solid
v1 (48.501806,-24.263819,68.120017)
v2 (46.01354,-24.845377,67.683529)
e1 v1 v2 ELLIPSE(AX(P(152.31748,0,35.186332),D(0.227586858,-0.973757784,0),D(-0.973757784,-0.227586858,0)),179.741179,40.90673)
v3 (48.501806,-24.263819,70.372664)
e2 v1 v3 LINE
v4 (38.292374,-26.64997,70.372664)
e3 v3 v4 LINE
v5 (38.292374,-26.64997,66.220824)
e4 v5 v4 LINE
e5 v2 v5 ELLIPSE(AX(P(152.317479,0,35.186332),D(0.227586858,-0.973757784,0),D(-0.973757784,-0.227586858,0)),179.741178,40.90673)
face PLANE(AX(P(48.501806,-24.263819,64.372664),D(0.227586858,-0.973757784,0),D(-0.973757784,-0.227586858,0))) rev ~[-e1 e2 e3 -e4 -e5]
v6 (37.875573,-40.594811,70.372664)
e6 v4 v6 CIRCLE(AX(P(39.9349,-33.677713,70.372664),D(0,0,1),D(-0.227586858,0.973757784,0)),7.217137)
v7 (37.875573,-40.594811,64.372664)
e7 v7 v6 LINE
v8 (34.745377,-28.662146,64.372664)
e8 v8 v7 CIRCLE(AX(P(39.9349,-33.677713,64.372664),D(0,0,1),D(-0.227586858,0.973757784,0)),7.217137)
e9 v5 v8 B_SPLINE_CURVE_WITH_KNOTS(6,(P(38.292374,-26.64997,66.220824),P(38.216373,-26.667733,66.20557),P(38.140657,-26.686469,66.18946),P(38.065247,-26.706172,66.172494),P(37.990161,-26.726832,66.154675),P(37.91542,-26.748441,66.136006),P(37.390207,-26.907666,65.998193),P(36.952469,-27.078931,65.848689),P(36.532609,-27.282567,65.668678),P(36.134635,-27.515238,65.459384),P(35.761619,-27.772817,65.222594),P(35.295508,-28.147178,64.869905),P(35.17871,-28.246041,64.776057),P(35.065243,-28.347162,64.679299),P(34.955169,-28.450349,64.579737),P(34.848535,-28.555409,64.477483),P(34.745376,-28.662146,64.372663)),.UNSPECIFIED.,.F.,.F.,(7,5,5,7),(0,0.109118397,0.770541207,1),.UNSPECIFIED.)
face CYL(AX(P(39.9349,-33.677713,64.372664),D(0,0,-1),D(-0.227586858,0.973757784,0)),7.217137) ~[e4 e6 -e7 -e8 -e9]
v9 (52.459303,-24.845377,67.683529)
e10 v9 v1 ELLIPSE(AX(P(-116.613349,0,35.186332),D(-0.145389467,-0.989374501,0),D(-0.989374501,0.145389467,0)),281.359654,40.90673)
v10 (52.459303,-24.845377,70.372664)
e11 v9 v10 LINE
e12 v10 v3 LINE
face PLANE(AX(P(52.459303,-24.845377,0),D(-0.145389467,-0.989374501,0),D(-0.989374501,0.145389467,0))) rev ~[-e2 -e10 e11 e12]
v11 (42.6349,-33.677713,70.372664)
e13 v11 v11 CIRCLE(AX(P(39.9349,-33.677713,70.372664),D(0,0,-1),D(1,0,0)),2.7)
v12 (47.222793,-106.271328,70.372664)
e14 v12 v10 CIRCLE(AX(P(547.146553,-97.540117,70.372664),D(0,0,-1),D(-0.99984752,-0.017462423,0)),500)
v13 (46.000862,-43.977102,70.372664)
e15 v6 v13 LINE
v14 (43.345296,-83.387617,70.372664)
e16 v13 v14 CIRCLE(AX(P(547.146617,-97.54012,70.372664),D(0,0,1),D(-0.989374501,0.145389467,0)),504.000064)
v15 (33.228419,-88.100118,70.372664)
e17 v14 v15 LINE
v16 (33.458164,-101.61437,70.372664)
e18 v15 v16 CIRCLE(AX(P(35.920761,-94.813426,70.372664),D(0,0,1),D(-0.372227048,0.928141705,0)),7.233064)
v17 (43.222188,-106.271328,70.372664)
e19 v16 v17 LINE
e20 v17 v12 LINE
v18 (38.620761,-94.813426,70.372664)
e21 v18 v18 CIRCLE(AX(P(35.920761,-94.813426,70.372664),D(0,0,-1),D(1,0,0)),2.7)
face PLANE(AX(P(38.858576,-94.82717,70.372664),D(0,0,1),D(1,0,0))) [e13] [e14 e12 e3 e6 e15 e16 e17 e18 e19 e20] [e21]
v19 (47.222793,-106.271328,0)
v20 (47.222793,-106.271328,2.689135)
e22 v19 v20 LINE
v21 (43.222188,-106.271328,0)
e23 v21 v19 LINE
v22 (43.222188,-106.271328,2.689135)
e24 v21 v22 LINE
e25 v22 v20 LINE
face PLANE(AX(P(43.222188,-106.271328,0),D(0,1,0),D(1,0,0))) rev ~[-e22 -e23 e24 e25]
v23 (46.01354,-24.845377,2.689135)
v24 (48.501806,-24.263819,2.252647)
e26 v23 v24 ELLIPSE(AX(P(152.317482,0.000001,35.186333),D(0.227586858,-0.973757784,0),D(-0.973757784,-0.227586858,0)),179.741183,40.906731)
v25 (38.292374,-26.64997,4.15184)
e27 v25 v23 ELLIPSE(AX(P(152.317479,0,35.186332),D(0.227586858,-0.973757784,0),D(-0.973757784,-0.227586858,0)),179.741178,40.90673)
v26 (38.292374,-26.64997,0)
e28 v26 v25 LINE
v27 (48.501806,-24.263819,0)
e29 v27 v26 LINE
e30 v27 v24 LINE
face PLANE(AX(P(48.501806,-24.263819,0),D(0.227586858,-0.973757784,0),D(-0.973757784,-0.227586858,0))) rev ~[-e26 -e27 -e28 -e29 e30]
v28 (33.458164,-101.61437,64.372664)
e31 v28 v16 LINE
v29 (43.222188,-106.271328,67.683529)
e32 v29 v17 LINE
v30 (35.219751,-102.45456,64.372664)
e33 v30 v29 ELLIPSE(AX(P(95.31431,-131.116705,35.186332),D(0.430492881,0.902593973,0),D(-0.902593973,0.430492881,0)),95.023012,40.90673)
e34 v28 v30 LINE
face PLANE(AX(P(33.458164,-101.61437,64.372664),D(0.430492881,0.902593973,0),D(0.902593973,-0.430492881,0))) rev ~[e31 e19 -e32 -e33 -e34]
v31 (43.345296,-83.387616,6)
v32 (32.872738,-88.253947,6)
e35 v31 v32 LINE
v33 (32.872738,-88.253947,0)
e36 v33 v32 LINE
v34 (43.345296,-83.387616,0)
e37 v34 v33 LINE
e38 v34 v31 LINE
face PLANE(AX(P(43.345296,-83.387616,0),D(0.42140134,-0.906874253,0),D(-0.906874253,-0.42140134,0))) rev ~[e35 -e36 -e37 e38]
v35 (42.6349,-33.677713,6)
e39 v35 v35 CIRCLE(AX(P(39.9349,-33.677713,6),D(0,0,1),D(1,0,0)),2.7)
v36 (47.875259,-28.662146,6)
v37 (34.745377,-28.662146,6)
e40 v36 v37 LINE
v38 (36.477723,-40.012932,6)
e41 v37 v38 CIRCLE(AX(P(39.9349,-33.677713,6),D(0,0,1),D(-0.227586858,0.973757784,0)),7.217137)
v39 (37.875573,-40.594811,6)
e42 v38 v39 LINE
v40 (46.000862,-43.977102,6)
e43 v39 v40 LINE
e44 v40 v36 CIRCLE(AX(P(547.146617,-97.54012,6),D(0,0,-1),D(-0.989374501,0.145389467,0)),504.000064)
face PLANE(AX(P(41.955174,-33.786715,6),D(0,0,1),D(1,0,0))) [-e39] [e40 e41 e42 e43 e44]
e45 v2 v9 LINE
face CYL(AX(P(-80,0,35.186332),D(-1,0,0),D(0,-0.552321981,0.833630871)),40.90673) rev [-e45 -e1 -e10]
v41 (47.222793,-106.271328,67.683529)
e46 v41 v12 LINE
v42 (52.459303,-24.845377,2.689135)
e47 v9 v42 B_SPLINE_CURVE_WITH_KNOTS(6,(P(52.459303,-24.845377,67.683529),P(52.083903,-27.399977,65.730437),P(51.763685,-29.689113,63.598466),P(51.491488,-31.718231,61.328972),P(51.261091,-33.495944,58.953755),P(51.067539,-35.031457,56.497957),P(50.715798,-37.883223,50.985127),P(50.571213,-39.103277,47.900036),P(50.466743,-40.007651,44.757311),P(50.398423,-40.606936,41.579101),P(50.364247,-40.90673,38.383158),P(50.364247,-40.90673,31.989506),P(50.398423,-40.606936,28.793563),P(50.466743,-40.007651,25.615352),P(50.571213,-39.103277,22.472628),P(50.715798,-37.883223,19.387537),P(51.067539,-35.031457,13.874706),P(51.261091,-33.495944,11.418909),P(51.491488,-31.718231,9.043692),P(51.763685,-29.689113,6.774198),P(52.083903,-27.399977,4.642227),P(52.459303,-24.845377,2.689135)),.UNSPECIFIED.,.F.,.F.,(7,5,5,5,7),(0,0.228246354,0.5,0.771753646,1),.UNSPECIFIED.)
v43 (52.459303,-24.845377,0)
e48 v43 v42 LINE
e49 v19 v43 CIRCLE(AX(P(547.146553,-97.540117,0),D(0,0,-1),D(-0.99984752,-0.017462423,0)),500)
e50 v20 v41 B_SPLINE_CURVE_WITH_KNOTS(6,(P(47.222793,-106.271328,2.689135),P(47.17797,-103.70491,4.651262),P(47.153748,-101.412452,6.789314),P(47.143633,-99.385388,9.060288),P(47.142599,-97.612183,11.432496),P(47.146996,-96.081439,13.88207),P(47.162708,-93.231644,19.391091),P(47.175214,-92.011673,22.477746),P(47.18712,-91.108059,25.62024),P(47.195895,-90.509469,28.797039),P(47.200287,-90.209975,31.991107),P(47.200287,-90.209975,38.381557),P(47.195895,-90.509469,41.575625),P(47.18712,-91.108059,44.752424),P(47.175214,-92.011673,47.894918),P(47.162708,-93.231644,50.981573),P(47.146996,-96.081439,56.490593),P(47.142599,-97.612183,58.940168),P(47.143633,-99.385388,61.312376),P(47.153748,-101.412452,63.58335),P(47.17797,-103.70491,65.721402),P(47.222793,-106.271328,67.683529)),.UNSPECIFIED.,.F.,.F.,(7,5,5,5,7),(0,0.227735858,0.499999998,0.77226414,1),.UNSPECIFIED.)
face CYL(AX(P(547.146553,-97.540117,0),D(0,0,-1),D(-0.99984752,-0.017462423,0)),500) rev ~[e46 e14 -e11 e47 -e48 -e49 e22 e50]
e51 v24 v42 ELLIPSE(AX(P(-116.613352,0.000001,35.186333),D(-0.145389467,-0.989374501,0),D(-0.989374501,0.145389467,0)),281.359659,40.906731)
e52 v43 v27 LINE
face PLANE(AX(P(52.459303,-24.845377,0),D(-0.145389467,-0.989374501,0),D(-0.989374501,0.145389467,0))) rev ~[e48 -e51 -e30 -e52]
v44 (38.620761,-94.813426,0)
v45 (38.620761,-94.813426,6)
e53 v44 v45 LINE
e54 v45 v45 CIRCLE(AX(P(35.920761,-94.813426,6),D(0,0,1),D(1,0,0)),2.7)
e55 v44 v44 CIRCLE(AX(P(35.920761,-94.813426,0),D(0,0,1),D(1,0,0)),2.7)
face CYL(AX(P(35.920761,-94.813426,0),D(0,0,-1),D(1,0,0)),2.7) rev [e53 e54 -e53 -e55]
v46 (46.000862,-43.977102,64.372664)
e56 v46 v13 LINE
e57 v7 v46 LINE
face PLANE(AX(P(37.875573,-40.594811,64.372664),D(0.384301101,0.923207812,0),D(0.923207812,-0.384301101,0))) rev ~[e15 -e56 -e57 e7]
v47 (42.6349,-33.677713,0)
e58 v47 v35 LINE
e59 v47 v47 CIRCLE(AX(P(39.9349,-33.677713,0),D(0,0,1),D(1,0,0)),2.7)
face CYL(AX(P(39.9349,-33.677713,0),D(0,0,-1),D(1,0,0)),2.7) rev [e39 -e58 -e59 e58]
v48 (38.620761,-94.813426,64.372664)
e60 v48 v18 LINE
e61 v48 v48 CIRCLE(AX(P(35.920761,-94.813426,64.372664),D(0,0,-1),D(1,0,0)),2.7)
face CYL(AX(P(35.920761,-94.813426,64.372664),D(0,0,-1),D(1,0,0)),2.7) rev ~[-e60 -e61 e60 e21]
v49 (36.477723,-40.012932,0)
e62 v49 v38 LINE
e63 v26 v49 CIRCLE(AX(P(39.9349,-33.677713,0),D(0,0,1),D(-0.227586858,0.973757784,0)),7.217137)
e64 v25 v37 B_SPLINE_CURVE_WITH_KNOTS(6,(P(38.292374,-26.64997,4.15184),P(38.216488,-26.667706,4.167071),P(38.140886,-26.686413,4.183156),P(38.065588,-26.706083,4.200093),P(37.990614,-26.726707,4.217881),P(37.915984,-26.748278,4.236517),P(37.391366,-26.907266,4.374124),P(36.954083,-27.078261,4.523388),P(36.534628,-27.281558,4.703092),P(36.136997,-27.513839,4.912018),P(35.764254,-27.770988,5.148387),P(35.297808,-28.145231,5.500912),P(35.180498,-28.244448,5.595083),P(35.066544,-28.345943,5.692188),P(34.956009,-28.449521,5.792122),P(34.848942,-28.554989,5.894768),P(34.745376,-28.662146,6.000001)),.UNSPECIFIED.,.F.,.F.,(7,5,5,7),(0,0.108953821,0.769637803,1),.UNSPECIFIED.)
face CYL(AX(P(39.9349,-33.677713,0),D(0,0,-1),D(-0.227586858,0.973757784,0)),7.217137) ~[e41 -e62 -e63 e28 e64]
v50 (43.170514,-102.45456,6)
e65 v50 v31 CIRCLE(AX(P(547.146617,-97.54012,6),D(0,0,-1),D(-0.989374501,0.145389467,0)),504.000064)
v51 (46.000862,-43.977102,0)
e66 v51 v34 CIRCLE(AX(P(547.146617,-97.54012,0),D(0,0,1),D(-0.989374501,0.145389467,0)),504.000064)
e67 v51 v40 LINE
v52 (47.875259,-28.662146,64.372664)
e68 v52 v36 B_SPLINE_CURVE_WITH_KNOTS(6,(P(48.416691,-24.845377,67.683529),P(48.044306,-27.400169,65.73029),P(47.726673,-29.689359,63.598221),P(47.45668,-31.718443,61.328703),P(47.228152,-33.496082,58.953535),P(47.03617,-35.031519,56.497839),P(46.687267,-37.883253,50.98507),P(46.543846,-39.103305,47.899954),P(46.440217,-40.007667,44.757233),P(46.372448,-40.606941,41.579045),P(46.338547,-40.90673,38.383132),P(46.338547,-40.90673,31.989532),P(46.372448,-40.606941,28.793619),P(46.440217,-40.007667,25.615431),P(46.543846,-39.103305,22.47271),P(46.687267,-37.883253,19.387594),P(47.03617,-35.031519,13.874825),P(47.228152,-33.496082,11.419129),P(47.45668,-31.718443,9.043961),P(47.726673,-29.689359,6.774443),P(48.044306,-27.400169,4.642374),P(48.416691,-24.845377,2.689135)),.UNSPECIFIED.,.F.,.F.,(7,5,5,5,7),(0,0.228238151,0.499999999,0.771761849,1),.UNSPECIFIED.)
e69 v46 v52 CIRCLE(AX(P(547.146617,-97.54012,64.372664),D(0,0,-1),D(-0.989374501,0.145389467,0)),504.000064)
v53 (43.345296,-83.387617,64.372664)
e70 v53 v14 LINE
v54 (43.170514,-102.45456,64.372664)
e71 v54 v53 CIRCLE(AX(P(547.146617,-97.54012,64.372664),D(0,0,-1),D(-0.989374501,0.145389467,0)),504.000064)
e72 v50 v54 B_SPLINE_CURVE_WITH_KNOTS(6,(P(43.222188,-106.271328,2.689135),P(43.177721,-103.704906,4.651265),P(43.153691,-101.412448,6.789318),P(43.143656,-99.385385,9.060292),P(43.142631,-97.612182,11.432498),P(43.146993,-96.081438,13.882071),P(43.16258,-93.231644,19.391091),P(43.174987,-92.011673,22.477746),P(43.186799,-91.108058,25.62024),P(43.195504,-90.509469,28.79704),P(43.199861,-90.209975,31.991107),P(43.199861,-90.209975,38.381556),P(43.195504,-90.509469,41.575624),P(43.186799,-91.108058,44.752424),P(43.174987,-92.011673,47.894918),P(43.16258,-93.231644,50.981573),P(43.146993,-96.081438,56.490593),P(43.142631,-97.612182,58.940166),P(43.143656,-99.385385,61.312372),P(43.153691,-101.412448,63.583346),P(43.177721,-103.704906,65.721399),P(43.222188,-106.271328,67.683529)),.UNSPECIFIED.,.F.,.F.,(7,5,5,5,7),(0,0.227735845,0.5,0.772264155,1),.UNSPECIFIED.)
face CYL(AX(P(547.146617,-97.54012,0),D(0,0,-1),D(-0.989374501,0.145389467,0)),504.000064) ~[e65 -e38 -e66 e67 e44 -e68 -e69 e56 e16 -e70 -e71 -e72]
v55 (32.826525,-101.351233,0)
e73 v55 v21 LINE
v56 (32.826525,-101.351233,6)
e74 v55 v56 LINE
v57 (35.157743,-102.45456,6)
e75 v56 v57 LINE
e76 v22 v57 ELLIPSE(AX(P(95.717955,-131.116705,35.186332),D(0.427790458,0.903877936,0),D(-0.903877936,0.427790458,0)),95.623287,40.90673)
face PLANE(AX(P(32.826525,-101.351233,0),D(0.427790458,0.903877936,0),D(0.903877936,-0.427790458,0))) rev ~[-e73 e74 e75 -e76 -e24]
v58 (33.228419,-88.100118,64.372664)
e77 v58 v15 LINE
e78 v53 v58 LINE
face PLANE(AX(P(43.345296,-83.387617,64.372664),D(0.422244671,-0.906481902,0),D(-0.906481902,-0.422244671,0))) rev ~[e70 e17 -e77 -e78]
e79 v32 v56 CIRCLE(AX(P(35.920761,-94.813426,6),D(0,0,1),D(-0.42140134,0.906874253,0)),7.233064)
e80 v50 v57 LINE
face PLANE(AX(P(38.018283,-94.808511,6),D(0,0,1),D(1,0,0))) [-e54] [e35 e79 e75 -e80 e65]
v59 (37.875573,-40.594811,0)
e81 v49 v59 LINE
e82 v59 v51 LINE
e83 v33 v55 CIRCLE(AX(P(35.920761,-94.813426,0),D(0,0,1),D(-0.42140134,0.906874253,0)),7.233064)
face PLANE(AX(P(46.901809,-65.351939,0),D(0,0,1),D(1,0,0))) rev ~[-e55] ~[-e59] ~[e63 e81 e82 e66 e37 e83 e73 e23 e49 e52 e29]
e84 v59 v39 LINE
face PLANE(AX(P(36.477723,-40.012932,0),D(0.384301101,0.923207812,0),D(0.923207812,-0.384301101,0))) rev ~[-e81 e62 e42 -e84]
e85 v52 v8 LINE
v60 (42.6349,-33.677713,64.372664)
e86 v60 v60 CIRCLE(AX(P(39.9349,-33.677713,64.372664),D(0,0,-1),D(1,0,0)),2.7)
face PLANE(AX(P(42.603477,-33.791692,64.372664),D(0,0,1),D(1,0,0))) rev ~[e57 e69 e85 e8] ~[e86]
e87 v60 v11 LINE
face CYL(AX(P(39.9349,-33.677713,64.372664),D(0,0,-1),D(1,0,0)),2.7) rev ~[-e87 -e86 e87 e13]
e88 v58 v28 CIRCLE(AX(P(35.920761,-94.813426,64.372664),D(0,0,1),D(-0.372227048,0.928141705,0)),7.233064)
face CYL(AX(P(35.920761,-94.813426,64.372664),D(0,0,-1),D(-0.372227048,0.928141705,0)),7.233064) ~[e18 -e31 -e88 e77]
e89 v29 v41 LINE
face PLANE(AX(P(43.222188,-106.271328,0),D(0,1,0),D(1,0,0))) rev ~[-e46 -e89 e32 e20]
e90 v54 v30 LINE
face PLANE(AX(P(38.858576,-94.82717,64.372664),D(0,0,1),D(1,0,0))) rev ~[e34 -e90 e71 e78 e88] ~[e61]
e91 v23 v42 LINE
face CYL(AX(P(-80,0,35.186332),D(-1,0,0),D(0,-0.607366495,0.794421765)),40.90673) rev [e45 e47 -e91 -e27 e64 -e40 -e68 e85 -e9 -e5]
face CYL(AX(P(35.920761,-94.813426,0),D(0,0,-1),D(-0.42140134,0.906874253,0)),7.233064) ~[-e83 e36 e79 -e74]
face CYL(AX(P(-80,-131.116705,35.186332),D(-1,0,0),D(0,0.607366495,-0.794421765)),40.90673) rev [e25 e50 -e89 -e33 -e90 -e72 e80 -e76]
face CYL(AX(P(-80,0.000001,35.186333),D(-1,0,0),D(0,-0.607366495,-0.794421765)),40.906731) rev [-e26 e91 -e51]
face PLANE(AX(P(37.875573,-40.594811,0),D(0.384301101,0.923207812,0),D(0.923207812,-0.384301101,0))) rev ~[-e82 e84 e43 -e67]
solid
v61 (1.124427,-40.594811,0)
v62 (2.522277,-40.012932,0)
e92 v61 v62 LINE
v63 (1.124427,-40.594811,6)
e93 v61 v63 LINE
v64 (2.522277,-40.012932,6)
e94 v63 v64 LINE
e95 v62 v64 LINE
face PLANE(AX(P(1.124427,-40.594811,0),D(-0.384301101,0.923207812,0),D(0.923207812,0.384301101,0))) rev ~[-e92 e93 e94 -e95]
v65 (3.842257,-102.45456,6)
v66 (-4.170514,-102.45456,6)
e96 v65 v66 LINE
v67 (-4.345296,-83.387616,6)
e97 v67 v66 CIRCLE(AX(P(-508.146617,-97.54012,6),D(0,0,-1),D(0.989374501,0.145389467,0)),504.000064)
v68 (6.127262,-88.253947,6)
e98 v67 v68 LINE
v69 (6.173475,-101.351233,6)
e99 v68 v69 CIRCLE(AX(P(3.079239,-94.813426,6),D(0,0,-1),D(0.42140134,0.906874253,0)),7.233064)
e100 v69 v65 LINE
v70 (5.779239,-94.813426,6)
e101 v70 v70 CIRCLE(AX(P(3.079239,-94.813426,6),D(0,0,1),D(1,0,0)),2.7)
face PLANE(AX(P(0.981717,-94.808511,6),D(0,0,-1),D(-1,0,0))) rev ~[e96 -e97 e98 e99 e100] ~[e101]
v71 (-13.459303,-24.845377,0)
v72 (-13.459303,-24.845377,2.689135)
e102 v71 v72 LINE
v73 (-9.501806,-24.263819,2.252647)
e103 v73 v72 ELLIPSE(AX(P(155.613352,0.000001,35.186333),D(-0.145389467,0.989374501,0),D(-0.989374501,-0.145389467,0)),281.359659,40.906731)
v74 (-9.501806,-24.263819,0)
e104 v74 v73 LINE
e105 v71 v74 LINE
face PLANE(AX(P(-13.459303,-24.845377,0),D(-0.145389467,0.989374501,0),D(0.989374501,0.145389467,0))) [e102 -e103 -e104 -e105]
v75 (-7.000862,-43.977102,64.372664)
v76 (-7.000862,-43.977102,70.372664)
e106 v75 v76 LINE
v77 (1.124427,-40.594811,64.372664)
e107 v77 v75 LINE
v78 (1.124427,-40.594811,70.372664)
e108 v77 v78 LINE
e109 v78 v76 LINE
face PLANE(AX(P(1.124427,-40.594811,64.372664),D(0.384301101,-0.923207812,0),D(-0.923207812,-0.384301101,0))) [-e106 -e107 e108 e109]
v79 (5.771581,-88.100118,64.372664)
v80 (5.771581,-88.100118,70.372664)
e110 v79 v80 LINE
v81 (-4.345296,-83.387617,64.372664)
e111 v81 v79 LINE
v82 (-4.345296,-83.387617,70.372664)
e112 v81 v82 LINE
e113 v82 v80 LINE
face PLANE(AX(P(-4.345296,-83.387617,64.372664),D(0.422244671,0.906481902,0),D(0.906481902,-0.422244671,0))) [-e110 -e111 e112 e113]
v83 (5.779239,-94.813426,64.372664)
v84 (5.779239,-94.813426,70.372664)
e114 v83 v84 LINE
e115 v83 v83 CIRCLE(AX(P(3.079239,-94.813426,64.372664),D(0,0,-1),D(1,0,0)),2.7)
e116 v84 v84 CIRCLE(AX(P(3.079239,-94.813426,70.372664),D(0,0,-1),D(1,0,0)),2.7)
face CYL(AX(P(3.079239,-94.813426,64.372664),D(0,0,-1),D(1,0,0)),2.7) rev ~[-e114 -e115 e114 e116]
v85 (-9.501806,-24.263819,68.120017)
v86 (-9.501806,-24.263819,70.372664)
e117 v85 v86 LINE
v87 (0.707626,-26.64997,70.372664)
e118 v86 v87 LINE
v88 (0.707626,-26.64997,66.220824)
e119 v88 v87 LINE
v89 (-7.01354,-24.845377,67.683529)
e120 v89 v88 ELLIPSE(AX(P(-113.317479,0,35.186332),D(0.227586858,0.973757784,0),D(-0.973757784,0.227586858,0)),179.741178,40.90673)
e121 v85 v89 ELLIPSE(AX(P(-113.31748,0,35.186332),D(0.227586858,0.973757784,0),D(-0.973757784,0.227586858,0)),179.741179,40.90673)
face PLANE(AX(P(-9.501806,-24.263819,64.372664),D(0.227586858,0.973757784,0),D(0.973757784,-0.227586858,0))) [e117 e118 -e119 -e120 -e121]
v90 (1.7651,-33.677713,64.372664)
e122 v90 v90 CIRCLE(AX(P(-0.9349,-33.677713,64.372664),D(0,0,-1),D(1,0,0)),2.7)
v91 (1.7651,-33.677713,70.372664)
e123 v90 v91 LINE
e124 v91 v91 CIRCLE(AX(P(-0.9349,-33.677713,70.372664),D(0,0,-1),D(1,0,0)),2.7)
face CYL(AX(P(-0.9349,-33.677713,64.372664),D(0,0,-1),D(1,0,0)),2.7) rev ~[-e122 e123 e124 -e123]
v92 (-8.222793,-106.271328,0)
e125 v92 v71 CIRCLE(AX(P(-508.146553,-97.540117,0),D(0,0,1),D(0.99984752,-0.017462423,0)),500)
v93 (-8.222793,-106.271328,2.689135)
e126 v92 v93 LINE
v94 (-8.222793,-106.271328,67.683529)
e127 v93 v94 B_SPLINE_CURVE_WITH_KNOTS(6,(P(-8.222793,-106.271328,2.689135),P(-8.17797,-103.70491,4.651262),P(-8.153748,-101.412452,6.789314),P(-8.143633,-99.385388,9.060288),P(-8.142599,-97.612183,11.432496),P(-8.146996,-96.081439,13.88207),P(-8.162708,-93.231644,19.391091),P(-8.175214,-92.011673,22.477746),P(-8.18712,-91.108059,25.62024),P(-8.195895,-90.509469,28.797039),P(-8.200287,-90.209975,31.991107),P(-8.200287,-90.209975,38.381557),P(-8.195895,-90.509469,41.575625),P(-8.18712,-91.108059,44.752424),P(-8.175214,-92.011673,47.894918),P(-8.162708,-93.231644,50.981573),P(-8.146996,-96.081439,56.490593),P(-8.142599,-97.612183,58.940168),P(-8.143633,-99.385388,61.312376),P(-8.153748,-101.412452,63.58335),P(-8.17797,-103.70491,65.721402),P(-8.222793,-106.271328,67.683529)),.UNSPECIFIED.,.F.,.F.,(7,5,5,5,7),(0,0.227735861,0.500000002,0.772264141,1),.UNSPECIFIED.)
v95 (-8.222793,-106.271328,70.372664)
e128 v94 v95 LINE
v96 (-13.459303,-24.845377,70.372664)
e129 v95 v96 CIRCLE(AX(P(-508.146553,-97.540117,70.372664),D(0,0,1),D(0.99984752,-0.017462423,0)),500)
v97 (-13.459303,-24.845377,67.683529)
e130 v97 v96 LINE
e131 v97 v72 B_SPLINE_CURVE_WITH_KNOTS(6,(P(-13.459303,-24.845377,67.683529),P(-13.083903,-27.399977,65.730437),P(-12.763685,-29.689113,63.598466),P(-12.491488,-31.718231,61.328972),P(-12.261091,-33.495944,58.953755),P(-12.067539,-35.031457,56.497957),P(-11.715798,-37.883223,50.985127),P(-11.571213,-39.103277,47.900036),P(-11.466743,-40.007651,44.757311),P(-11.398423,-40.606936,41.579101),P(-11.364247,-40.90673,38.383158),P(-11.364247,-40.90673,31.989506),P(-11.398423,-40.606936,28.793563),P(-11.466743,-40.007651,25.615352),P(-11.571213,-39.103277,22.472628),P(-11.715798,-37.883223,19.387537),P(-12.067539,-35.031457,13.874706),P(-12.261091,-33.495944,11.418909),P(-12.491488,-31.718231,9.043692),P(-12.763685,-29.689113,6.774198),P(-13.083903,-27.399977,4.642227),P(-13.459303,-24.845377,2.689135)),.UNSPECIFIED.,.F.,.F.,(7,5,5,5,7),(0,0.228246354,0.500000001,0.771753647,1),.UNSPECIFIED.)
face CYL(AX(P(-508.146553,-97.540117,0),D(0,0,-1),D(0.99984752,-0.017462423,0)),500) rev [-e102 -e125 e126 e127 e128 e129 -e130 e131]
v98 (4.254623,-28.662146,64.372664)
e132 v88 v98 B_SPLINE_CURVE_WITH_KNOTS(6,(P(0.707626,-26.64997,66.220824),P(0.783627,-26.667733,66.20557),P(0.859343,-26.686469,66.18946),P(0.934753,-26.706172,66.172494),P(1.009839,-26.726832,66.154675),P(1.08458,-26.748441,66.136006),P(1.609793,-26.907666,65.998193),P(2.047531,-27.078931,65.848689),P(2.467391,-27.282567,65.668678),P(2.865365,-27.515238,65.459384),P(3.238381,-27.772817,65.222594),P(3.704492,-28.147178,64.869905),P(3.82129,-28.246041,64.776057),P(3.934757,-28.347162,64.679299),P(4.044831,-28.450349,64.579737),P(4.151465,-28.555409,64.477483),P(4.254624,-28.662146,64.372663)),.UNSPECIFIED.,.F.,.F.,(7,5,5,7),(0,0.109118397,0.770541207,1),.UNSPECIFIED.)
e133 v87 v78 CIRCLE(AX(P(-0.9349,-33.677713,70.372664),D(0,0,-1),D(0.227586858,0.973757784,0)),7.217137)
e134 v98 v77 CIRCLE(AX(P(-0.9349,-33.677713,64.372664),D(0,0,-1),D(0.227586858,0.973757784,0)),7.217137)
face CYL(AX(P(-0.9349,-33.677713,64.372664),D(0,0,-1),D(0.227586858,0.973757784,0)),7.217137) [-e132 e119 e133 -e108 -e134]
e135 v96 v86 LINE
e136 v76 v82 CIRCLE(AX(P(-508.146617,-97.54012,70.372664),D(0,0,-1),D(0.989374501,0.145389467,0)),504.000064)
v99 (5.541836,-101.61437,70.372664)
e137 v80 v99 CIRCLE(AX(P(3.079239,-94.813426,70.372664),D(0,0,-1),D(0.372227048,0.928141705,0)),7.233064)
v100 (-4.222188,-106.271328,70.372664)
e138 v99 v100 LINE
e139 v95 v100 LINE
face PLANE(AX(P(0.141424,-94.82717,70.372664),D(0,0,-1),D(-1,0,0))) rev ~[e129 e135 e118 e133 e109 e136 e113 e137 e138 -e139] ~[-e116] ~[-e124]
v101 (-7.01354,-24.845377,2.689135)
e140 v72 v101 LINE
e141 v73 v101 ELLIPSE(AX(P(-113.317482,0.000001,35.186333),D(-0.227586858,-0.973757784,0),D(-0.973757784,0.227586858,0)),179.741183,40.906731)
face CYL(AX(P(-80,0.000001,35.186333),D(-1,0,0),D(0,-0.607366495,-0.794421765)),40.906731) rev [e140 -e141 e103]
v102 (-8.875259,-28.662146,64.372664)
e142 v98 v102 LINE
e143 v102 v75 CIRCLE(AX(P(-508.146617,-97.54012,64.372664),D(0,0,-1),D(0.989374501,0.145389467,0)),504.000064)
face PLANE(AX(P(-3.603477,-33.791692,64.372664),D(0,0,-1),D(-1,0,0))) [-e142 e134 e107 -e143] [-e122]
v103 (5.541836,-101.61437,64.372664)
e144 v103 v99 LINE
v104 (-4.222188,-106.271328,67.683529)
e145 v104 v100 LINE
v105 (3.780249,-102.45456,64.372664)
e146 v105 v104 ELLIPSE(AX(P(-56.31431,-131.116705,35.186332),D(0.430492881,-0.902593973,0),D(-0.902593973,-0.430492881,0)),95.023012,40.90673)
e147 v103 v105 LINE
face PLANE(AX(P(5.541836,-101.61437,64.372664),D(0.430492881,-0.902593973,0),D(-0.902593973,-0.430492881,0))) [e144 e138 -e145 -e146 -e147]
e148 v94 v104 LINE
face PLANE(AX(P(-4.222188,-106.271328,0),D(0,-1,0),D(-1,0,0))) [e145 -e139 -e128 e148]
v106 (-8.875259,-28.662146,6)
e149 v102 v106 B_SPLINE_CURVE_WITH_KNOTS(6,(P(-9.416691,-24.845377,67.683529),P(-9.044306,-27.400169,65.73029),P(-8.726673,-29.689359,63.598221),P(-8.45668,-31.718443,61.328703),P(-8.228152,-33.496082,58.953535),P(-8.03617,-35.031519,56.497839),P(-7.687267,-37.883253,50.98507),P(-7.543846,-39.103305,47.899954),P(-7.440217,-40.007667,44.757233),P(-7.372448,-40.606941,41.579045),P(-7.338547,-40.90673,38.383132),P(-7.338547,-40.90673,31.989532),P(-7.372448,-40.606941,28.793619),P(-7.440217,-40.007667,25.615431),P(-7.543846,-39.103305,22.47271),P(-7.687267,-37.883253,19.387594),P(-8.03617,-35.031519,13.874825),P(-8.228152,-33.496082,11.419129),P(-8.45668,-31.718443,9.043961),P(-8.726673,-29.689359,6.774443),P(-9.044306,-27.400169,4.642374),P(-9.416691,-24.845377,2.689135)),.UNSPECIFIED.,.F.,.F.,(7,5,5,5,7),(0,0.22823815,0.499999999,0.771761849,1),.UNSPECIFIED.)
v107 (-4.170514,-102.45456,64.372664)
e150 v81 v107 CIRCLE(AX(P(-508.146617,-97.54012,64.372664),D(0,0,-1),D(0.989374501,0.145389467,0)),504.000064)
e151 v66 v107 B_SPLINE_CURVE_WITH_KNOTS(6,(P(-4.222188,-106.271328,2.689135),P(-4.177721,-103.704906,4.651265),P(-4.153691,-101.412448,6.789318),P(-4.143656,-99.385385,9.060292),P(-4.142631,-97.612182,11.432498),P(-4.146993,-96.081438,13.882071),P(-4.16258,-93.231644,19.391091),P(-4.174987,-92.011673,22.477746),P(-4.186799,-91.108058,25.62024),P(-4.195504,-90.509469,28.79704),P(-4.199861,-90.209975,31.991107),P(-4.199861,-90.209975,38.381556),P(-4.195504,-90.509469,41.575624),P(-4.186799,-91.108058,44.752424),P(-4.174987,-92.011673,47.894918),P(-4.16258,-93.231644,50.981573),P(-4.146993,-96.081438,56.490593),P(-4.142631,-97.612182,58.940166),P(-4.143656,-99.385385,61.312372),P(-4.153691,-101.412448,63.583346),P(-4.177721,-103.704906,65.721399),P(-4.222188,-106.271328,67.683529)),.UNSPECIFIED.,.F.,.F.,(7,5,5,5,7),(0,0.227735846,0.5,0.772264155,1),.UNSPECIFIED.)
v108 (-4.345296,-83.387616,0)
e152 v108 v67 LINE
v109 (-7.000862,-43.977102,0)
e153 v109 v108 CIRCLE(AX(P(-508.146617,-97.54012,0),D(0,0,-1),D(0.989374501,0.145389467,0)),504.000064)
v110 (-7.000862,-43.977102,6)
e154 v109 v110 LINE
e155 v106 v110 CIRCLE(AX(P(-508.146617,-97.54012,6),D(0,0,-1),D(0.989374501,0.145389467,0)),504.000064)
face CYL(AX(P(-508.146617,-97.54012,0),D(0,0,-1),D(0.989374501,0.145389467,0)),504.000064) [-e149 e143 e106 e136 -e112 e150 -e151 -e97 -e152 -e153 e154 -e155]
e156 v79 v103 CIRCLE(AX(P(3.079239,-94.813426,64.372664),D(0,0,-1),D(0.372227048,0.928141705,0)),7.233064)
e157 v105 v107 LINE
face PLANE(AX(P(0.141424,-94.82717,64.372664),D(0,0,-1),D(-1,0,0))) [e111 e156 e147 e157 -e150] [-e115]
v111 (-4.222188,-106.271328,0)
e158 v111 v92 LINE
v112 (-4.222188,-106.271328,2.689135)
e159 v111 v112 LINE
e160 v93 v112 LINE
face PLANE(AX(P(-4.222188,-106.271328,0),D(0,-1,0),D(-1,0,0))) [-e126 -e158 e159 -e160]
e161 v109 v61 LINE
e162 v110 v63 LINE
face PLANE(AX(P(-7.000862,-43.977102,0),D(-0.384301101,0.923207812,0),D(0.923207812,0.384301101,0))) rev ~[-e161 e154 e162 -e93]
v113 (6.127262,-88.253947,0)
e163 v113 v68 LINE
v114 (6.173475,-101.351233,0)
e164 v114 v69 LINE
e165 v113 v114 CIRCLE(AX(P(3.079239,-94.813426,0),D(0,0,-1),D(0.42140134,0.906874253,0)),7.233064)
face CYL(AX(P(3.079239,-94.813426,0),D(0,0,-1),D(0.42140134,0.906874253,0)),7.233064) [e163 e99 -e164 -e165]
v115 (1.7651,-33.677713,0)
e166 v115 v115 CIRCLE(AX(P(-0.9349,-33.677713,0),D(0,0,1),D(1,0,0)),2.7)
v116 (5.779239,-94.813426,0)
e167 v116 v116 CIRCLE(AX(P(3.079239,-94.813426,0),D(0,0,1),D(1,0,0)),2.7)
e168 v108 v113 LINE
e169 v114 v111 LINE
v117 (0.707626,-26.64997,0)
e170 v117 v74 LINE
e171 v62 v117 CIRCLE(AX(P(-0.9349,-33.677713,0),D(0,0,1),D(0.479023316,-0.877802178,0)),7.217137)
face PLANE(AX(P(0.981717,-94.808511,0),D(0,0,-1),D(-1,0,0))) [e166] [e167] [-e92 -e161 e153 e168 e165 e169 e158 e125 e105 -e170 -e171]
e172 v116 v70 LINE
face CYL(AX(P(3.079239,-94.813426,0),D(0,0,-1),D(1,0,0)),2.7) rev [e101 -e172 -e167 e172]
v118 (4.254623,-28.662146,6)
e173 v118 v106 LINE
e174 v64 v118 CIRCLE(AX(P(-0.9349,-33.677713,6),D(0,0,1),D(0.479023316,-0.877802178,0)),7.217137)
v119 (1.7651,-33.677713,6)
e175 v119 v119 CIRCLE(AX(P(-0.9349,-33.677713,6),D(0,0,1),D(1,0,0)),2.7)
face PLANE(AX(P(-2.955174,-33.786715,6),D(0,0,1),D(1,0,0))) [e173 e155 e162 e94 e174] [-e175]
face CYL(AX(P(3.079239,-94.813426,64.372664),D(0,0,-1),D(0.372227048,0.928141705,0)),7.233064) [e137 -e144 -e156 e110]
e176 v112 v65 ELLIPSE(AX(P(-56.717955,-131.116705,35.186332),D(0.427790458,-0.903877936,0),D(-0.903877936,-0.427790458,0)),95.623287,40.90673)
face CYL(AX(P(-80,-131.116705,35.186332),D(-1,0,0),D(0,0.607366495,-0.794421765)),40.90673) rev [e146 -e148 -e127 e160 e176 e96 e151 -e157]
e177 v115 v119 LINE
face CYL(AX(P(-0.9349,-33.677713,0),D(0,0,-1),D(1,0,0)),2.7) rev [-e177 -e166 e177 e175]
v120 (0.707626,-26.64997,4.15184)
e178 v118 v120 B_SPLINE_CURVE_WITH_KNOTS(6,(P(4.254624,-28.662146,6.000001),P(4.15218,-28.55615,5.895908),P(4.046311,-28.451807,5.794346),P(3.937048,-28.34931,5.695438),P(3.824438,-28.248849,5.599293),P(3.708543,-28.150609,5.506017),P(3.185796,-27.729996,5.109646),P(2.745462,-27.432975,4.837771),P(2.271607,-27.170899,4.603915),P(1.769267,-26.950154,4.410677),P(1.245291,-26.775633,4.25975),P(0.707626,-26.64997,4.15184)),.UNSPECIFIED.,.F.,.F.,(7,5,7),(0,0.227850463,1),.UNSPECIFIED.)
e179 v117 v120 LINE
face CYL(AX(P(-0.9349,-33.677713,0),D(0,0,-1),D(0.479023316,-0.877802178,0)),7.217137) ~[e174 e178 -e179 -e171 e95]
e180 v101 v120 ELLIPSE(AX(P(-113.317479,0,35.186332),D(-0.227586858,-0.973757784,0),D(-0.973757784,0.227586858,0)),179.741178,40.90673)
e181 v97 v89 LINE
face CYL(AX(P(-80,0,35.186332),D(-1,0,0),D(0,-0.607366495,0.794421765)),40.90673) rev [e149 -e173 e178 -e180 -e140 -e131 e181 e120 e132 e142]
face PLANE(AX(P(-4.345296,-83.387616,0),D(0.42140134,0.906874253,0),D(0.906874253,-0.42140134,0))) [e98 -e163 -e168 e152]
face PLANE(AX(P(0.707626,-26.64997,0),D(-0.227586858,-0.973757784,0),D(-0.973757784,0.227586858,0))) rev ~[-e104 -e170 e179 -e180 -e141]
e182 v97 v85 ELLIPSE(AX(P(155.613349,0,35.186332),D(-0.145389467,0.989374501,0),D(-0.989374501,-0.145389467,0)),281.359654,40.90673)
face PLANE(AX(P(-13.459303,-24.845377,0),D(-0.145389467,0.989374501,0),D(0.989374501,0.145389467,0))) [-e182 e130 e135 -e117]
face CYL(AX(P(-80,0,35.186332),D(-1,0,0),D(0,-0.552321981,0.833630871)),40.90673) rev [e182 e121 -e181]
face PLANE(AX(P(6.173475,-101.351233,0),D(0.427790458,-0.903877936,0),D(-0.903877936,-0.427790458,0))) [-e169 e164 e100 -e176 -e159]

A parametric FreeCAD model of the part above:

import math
import FreeCAD as App
import Part
import Sketcher

doc = App.newDocument("Part")
body = doc.addObject("PartDesign::Body", "Body")

# Sketch on XY plane
sketch1 = doc.addObject("Sketcher::SketchObject", "Sketch")
body.addObject(sketch1)
sketch1.AttachmentSupport = (doc.XY_Plane, [""])
sketch1.MapMode = "FlatFace"
sketch1.addGeometry([
    Part.LineSegment(App.Vector(52.5, -24.8, 0), App.Vector(48.5, -24.3, 0)),
    Part.ArcOfCircle(Part.Circle(App.Vector(547.1, -97.5, 0), App.Vector(0, 0, 1), 504), math.radians(171.64), math.radians(180.99)),
    Part.LineSegment(App.Vector(43.2, -106.3, 0), App.Vector(47.2, -106.3, 0)),
    Part.ArcOfCircle(Part.Circle(App.Vector(547.1, -97.5, 0), App.Vector(0, 0, 1), 500), math.radians(171.64), math.radians(181)),
], False)
sketch1.addConstraint([
    Sketcher.Constraint("Coincident", 0, 2, 1, 1),
    Sketcher.Constraint("Coincident", 1, 2, 2, 1),
    Sketcher.Constraint("Coincident", 2, 2, 3, 2),
    Sketcher.Constraint("Coincident", 3, 1, 0, 1),
    Sketcher.Constraint("Horizontal", 2),
    Sketcher.Constraint("Radius", 3, 500.0),
    Sketcher.Constraint("Distance", 0, 4.0),
    Sketcher.Constraint("Radius", 1, 504.000064),
    Sketcher.Constraint("DistanceY", 1, 3, 0, 2, 73.276301),
    Sketcher.Constraint("DistanceX", 2, 1, 2, 2, 4.000605),
    Sketcher.Constraint("DistanceY", 1, 3, -1, 1, 97.54012),
    Sketcher.Constraint("DistanceY", 2, 2, 0, 2, 82.007509),
    Sketcher.Constraint("DistanceX", 2, 2, 3, 1, 5.236511),
    Sketcher.Constraint("DistanceX", -1, 1, 1, 3, 547.146617),
])
pad1 = doc.addObject("PartDesign::Pad", "Pad")
body.addObject(pad1)
pad1.Profile = sketch1
pad1.Length = 70.372664
body2 = doc.addObject("PartDesign::Body", "Body001")

# Sketch on XY plane
sketch2 = doc.addObject("Sketcher::SketchObject", "Sketch001")
body2.addObject(sketch2)
sketch2.AttachmentSupport = (doc.getObject("XY_Plane001"), [""])
sketch2.MapMode = "FlatFace"
sketch2.addGeometry([
    Part.ArcOfCircle(Part.Circle(App.Vector(-508.1, -97.5, 0), App.Vector(0, 0, 1), 504), math.radians(-0.99), math.radians(8.36)),
    Part.LineSegment(App.Vector(-9.5, -24.3, 0), App.Vector(-13.5, -24.8, 0)),
    Part.ArcOfCircle(Part.Circle(App.Vector(-508.1, -97.5, 0), App.Vector(0, 0, 1), 500), math.radians(-1), math.radians(8.36)),
    Part.LineSegment(App.Vector(-8.2, -106.3, 0), App.Vector(-4.2, -106.3, 0)),
], False)
sketch2.addConstraint([
    Sketcher.Constraint("Coincident", 0, 2, 1, 1),
    Sketcher.Constraint("Coincident", 1, 2, 2, 2),
    Sketcher.Constraint("Coincident", 2, 1, 3, 1),
    Sketcher.Constraint("Coincident", 3, 2, 0, 1),
    Sketcher.Constraint("Horizontal", 3),
    Sketcher.Constraint("Radius", 2, 500.0),
    Sketcher.Constraint("Distance", 1, 4.0),
    Sketcher.Constraint("Radius", 0, 504.000064),
    Sketcher.Constraint("DistanceY", 0, 3, 0, 2, 73.276301),
    Sketcher.Constraint("DistanceX", 3, 1, 3, 2, 4.000605),
    Sketcher.Constraint("DistanceY", 0, 3, -1, 1, 97.54012),
    Sketcher.Constraint("DistanceX", 2, 3, 1, 2, 494.687249),
    Sketcher.Constraint("DistanceY", 3, 2, 1, 2, 81.425951),
    Sketcher.Constraint("DistanceX", 0, 3, -1, 1, 508.146617),
])
pad2 = doc.addObject("PartDesign::Pad", "Pad001")
body2.addObject(pad2)
pad2.Profile = sketch2
pad2.Length = 70.372664
body.AllowCompound = True
doc.recompute()

boolean = doc.addObject("PartDesign::Boolean", "Boolean")
body.addObject(boolean)
boolean.Type = "Fuse"
boolean.addObjects([body2])

# Sketch on XY plane
sketch3 = doc.addObject("Sketcher::SketchObject", "Sketch002")
body.addObject(sketch3)
sketch3.AttachmentSupport = (doc.XY_Plane, [""])
sketch3.MapMode = "FlatFace"
sketch3.addGeometry([
    Part.LineSegment(App.Vector(46.6, -44.3, 0), App.Vector(48.5, -24.3, 0)),  # 0
    Part.LineSegment(App.Vector(48.5, -24.3, 0), App.Vector(38.3, -26.6, 0)),  # 1
    Part.ArcOfCircle(Part.Circle(App.Vector(39.9, -33.7, 0), App.Vector(0, 0, 1), 7.2), math.radians(103), math.radians(241)),  # 2
    Part.LineSegment(App.Vector(36.5, -40, 0), App.Vector(37.9, -40.6, 0)),  # 3
    Part.LineSegment(App.Vector(37.9, -40.6, 0), App.Vector(46, -44, 0)),  # 4
    Part.LineSegment(App.Vector(46, -44, 0), App.Vector(46.6, -44.3, 0)),  # 5
    Part.Circle(App.Vector(39.9, -33.7, 0), App.Vector(0, 0, 1), 2.7),  # 6
    Part.LineSegment(App.Vector(43.3, -83.4, 0), App.Vector(32.9, -88.3, 0)),  # 7
    Part.ArcOfCircle(Part.Circle(App.Vector(35.9, -94.8, 0), App.Vector(0, 0, 1), 7.2), math.radians(115), math.radians(245)),  # 8
    Part.LineSegment(App.Vector(32.8, -101.4, 0), App.Vector(43.2, -106.3, 0)),  # 9
    Part.LineSegment(App.Vector(43.2, -106.3, 0), App.Vector(43.3, -83.4, 0)),  # 10
    Part.Circle(App.Vector(35.9, -94.8, 0), App.Vector(0, 0, 1), 2.7),  # 11
    Part.ArcOfCircle(Part.Circle(App.Vector(3.1, -94.8, 0), App.Vector(0, 0, 1), 7.2), math.radians(-65), math.radians(65)),  # 12
    Part.LineSegment(App.Vector(6.1, -88.3, 0), App.Vector(-4.3, -83.4, 0)),  # 13
    Part.LineSegment(App.Vector(-4.3, -83.4, 0), App.Vector(-4.2, -106.3, 0)),  # 14
    Part.LineSegment(App.Vector(-4.2, -106.3, 0), App.Vector(6.2, -101.4, 0)),  # 15
    Part.Circle(App.Vector(3.1, -94.8, 0), App.Vector(0, 0, 1), 2.7),  # 16
    Part.LineSegment(App.Vector(-9.5, -24.3, 0), App.Vector(-7.6, -44.3, 0)),  # 17
    Part.LineSegment(App.Vector(-7.6, -44.3, 0), App.Vector(-7, -44, 0)),  # 18
    Part.LineSegment(App.Vector(-7, -44, 0), App.Vector(1.1, -40.6, 0)),  # 19
    Part.LineSegment(App.Vector(1.1, -40.6, 0), App.Vector(2.5, -40, 0)),  # 20
    Part.ArcOfCircle(Part.Circle(App.Vector(-0.9, -33.7, 0), App.Vector(0, 0, 1), 7.2), math.radians(-61), math.radians(77)),  # 21
    Part.LineSegment(App.Vector(0.7, -26.6, 0), App.Vector(-9.5, -24.3, 0)),  # 22
    Part.Circle(App.Vector(-0.9, -33.7, 0), App.Vector(0, 0, 1), 2.7),  # 23
], False)
sketch3.addConstraint([
    Sketcher.Constraint("Coincident", 0, 2, 1, 1),
    Sketcher.Constraint("Tangent", 1, 2, 2, 1),
    Sketcher.Constraint("Coincident", 2, 2, 3, 1),
    Sketcher.Constraint("Coincident", 3, 2, 4, 1),
    Sketcher.Constraint("Coincident", 4, 2, 5, 1),
    Sketcher.Constraint("Coincident", 5, 2, 0, 1),
    Sketcher.Constraint("Tangent", 7, 2, 8, 1),
    Sketcher.Constraint("Tangent", 8, 2, 9, 1),
    Sketcher.Constraint("Coincident", 9, 2, 10, 1),
    Sketcher.Constraint("Coincident", 10, 2, 7, 1),
    Sketcher.Constraint("Tangent", 12, 2, 13, 1),
    Sketcher.Constraint("Coincident", 13, 2, 14, 1),
    Sketcher.Constraint("Coincident", 14, 2, 15, 1),
    Sketcher.Constraint("Tangent", 15, 2, 12, 1),
    Sketcher.Constraint("Coincident", 17, 2, 18, 1),
    Sketcher.Constraint("Coincident", 18, 2, 19, 1),
    Sketcher.Constraint("Coincident", 19, 2, 20, 1),
    Sketcher.Constraint("Coincident", 20, 2, 21, 1),
    Sketcher.Constraint("Tangent", 21, 2, 22, 1),
    Sketcher.Constraint("Coincident", 22, 2, 17, 1),
    Sketcher.Constraint("Coincident", 6, 3, 2, 3),
    Sketcher.Constraint("Coincident", 11, 3, 8, 3),
    Sketcher.Constraint("Coincident", 16, 3, 12, 3),
    Sketcher.Constraint("Coincident", 23, 3, 21, 3),
    Sketcher.Constraint("Equal", 6, 11),
    Sketcher.Constraint("Equal", 8, 12),
    Sketcher.Constraint("Equal", 11, 16),
    Sketcher.Constraint("Equal", 2, 21),
    Sketcher.Constraint("Equal", 16, 23),
    Sketcher.Constraint("Parallel", 3, 4),
    Sketcher.Constraint("Parallel", 19, 20),
    Sketcher.Constraint("Horizontal", 11, 3, 12, 3),
    Sketcher.Constraint("Horizontal", 6, 3, 21, 3),
    Sketcher.Constraint("Horizontal", 7, 2, 12, 2),
    Sketcher.Constraint("Horizontal", 10, 2, 13, 2),
    Sketcher.Constraint("Horizontal", 9, 2, 14, 2),
    Sketcher.Constraint("Horizontal", 8, 2, 15, 2),
    Sketcher.Constraint("Horizontal", 5, 2, 17, 2),
    Sketcher.Constraint("Horizontal", 4, 2, 18, 2),
    Sketcher.Constraint("Horizontal", 3, 2, 19, 2),
    Sketcher.Constraint("Horizontal", 2, 2, 20, 2),
    Sketcher.Constraint("Horizontal", 1, 2, 21, 2),
    Sketcher.Constraint("Horizontal", 0, 2, 22, 2),
    Sketcher.Constraint("Equal", 0, 17),
    Sketcher.Constraint("Equal", 5, 18),
    Sketcher.Constraint("Diameter", 6, 5.4),
    Sketcher.Constraint("Radius", 2, 7.217137),
    Sketcher.Constraint("Radius", 8, 7.233064),
    Sketcher.Constraint("DistanceX", -1, 1, 2, 3, 39.9349),
    Sketcher.Constraint("DistanceX", 21, 3, -1, 1, 0.9349),
    Sketcher.Constraint("DistanceX", 3, 2, 1, 2, 0.416802),
    Sketcher.Constraint("DistanceX", 16, 3, 7, 2, 29.793499),
    Sketcher.Constraint("DistanceY", 9, 2, 8, 3, 11.457902),
    Sketcher.Constraint("Distance", 0, 20.105619),
    Sketcher.Constraint("Distance", 1, 10.48457),
    Sketcher.Constraint("Distance", 4, 8.801149),
    Sketcher.Constraint("Distance", 5, 0.660111),
    Sketcher.Constraint("Distance", 7, 11.547972),
    Sketcher.Constraint("Distance", 9, 11.50118),
    Sketcher.Constraint("DistanceX", -1, 1, 8, 3, 35.920761),
    Sketcher.Constraint("DistanceX", -1, 1, 12, 3, 3.079239),
    Sketcher.Constraint("DistanceY", 0, 2, -1, 1, 24.263819),
    Sketcher.Constraint("DistanceY", 1, 2, -1, 1, 26.64997),
    Sketcher.Constraint("DistanceY", 3, 2, -1, 1, 40.594811),
    Sketcher.Constraint("DistanceY", 2, 2, 2, 3, 6.335219),
    Sketcher.Constraint("DistanceY", 7, 2, 5, 2, 43.975771),
])
pad3 = doc.addObject("PartDesign::Pad", "Pad002")
body.addObject(pad3)
pad3.Profile = sketch3
pad3.Length = 6

# Sketch on XY plane
sketch4 = doc.addObject("Sketcher::SketchObject", "Sketch003")
body.addObject(sketch4)
sketch4.AttachmentSupport = (doc.XY_Plane, [""])
sketch4.MapMode = "FlatFace"
sketch4.AttachmentOffset = App.Placement(App.Vector(0, 0, 64.372664), App.Rotation())
sketch4.addGeometry([
    Part.ArcOfCircle(Part.Circle(App.Vector(35.9, -94.8, 0), App.Vector(0, 0, 1), 7.2), math.radians(112), math.radians(250)),  # 0
    Part.LineSegment(App.Vector(33.2, -88.1, 0), App.Vector(43.3, -83.4, 0)),  # 1
    Part.LineSegment(App.Vector(43.3, -83.4, 0), App.Vector(44.8, -83.4, 0)),  # 2
    Part.LineSegment(App.Vector(44.8, -83.4, 0), App.Vector(44.8, -106.3, 0)),  # 3
    Part.LineSegment(App.Vector(44.8, -106.3, 0), App.Vector(43.2, -106.3, 0)),  # 4
    Part.LineSegment(App.Vector(43.2, -106.3, 0), App.Vector(33.5, -101.6, 0)),  # 5
    Part.Circle(App.Vector(35.9, -94.8, 0), App.Vector(0, 0, 1), 2.7),  # 6
    Part.ArcOfCircle(Part.Circle(App.Vector(39.9, -33.7, 0), App.Vector(0, 0, 1), 7.2), math.radians(103), math.radians(253)),  # 7
    Part.LineSegment(App.Vector(38.3, -26.6, 0), App.Vector(48.5, -24.3, 0)),  # 8
    Part.LineSegment(App.Vector(48.5, -24.3, 0), App.Vector(50, -25.3, 0)),  # 9
    Part.LineSegment(App.Vector(50, -25.3, 0), App.Vector(47.8, -44, 0)),  # 10
    Part.LineSegment(App.Vector(47.8, -44, 0), App.Vector(46, -44, 0)),  # 11
    Part.LineSegment(App.Vector(46, -44, 0), App.Vector(37.9, -40.6, 0)),  # 12
    Part.Circle(App.Vector(39.9, -33.7, 0), App.Vector(0, 0, 1), 2.7),  # 13
    Part.LineSegment(App.Vector(-4.3, -83.4, 0), App.Vector(5.8, -88.1, 0)),  # 14
    Part.ArcOfCircle(Part.Circle(App.Vector(3.1, -94.8, 0), App.Vector(0, 0, 1), 7.2), math.radians(-70), math.radians(68)),  # 15
    Part.LineSegment(App.Vector(5.5, -101.6, 0), App.Vector(-4.2, -106.3, 0)),  # 16
    Part.LineSegment(App.Vector(-4.2, -106.3, 0), App.Vector(-5.8, -106.3, 0)),  # 17
    Part.LineSegment(App.Vector(-5.8, -106.3, 0), App.Vector(-5.8, -83.4, 0)),  # 18
    Part.LineSegment(App.Vector(-5.8, -83.4, 0), App.Vector(-4.3, -83.4, 0)),  # 19
    Part.Circle(App.Vector(3.1, -94.8, 0), App.Vector(0, 0, 1), 2.7),  # 20
    Part.LineSegment(App.Vector(-9.5, -24.3, 0), App.Vector(0.7, -26.6, 0)),  # 21
    Part.ArcOfCircle(Part.Circle(App.Vector(-0.9, -33.7, 0), App.Vector(0, 0, 1), 7.2), math.radians(-73), math.radians(77)),  # 22
    Part.LineSegment(App.Vector(1.1, -40.6, 0), App.Vector(-7, -44, 0)),  # 23
    Part.LineSegment(App.Vector(-7, -44, 0), App.Vector(-8.8, -44, 0)),  # 24
    Part.LineSegment(App.Vector(-8.8, -44, 0), App.Vector(-11, -25.3, 0)),  # 25
    Part.LineSegment(App.Vector(-11, -25.3, 0), App.Vector(-9.5, -24.3, 0)),  # 26
    Part.Circle(App.Vector(-0.9, -33.7, 0), App.Vector(0, 0, 1), 2.7),  # 27
], False)
sketch4.addConstraint([
    Sketcher.Constraint("Coincident", 0, 1, 1, 1),
    Sketcher.Constraint("Coincident", 1, 2, 2, 1),
    Sketcher.Constraint("Coincident", 2, 2, 3, 1),
    Sketcher.Constraint("Coincident", 3, 2, 4, 1),
    Sketcher.Constraint("Coincident", 4, 2, 5, 1),
    Sketcher.Constraint("Coincident", 5, 2, 0, 2),
    Sketcher.Constraint("Tangent", 7, 1, 8, 1),
    Sketcher.Constraint("Coincident", 8, 2, 9, 1),
    Sketcher.Constraint("Coincident", 9, 2, 10, 1),
    Sketcher.Constraint("Coincident", 10, 2, 11, 1),
    Sketcher.Constraint("Coincident", 11, 2, 12, 1),
    Sketcher.Constraint("Coincident", 12, 2, 7, 2),
    Sketcher.Constraint("Coincident", 14, 2, 15, 2),
    Sketcher.Constraint("Coincident", 15, 1, 16, 1),
    Sketcher.Constraint("Coincident", 16, 2, 17, 1),
    Sketcher.Constraint("Coincident", 17, 2, 18, 1),
    Sketcher.Constraint("Coincident", 18, 2, 19, 1),
    Sketcher.Constraint("Coincident", 19, 2, 14, 1),
    Sketcher.Constraint("Tangent", 21, 2, 22, 2),
    Sketcher.Constraint("Coincident", 22, 1, 23, 1),
    Sketcher.Constraint("Coincident", 23, 2, 24, 1),
    Sketcher.Constraint("Coincident", 24, 2, 25, 1),
    Sketcher.Constraint("Coincident", 25, 2, 26, 1),
    Sketcher.Constraint("Coincident", 26, 2, 21, 1),
    Sketcher.Constraint("Horizontal", 2),
    Sketcher.Constraint("Vertical", 3),
    Sketcher.Constraint("Horizontal", 4),
    Sketcher.Constraint("Horizontal", 11),
    Sketcher.Constraint("Horizontal", 17),
    Sketcher.Constraint("Vertical", 18),
    Sketcher.Constraint("Horizontal", 19),
    Sketcher.Constraint("Horizontal", 24),
    Sketcher.Constraint("Coincident", 6, 3, 0, 3),
    Sketcher.Constraint("Coincident", 13, 3, 7, 3),
    Sketcher.Constraint("Coincident", 20, 3, 15, 3),
    Sketcher.Constraint("Coincident", 27, 3, 22, 3),
    Sketcher.Constraint("Equal", 6, 13),
    Sketcher.Constraint("Equal", 0, 15),
    Sketcher.Constraint("Equal", 13, 20),
    Sketcher.Constraint("Equal", 7, 22),
    Sketcher.Constraint("Equal", 20, 27),
    Sketcher.Constraint("Horizontal", 6, 3, 15, 3),
    Sketcher.Constraint("Horizontal", 13, 3, 22, 3),
    Sketcher.Constraint("Horizontal", 0, 1, 14, 2),
    Sketcher.Constraint("Horizontal", 5, 2, 15, 1),
    Sketcher.Constraint("Horizontal", 4, 2, 16, 2),
    Sketcher.Constraint("Horizontal", 2, 2, 18, 2),
    Sketcher.Constraint("Horizontal", 7, 1, 21, 2),
    Sketcher.Constraint("Horizontal", 12, 2, 22, 1),
    Sketcher.Constraint("Horizontal", 11, 2, 23, 2),
    Sketcher.Constraint("Horizontal", 9, 2, 25, 2),
    Sketcher.Constraint("Horizontal", 8, 2, 26, 2),
    Sketcher.Constraint("Equal", 4, 17),
    Sketcher.Constraint("Equal", 2, 19),
    Sketcher.Constraint("Equal", 11, 24),
    Sketcher.Constraint("Equal", 1, 14),
    Sketcher.Constraint("Equal", 12, 23),
    Sketcher.Constraint("Equal", 10, 25),
    Sketcher.Constraint("Diameter", 6, 5.4),
    Sketcher.Constraint("Radius", 0, 7.233064),
    Sketcher.Constraint("Radius", 7, 7.217137),
    Sketcher.Constraint("DistanceY", 3, 2, 3, 1, 22.883711),
    Sketcher.Constraint("DistanceX", -1, 1, 7, 3, 39.9349),
    Sketcher.Constraint("DistanceX", 22, 3, -1, 1, 0.9349),
    Sketcher.Constraint("DistanceX", -1, 1, 2, 2, 44.804702),
    Sketcher.Constraint("DistanceX", -1, 1, 10, 2, 47.765499),
    Sketcher.Constraint("DistanceX", 17, 2, -1, 1, 5.804702),
    Sketcher.Constraint("DistanceY", 0, 1, 1, 2, 4.712502),
    Sketcher.Constraint("DistanceY", 3, 2, 0, 3, 11.457902),
    Sketcher.Constraint("DistanceX", 10, 2, 9, 2, 2.220598),
    Sketcher.Constraint("DistanceX", 12, 2, 7, 1, 0.416802),
    Sketcher.Constraint("Distance", 8, 10.48457),
    Sketcher.Constraint("Distance", 12, 8.801149),
    Sketcher.Constraint("DistanceX", 2, 1, 2, 2, 1.459405),
    Sketcher.Constraint("DistanceX", 4, 2, 4, 1, 1.582514),
    Sketcher.Constraint("DistanceX", 11, 2, 11, 1, 1.764637),
    Sketcher.Constraint("DistanceX", -1, 1, 0, 3, 35.920761),
    Sketcher.Constraint("DistanceY", 0, 1, -1, 1, 88.100118),
    Sketcher.Constraint("DistanceY", 5, 2, -1, 1, 101.61437),
    Sketcher.Constraint("DistanceY", 7, 1, -1, 1, 26.64997),
    Sketcher.Constraint("DistanceY", 8, 2, -1, 1, 24.263819),
    Sketcher.Constraint("DistanceY", 13, 3, 9, 2, 8.412059),
])
pad4 = doc.addObject("PartDesign::Pad", "Pad003")
body.addObject(pad4)
pad4.Profile = sketch4
pad4.Length = 6

# Sketch on YZ plane
sketch5 = doc.addObject("Sketcher::SketchObject", "Sketch004")
body.addObject(sketch5)
sketch5.AttachmentSupport = (doc.YZ_Plane, [""])
sketch5.MapMode = "FlatFace"
sketch5.AttachmentOffset = App.Placement(App.Vector(0, 0, 42), App.Rotation())
sketch5.addGeometry([
    Part.ArcOfCircle(Part.Circle(App.Vector(0, 35.2, 0), App.Vector(0, 0, 1), 40.9), math.radians(123.53), math.radians(127.4)),  # 0
    Part.ArcOfCircle(Part.Circle(App.Vector(0, 35.2, 0), App.Vector(0, 0, 1), 40.9), math.radians(127), math.radians(233)),  # 1
    Part.ArcOfCircle(Part.Circle(App.Vector(0, 35.2, 0), App.Vector(0, 0, 1), 40.9), math.radians(-127.4), math.radians(-123.53)),  # 2
    Part.LineSegment(App.Vector(-22.6, 1.1, 0), App.Vector(-22.6, 69.3, 0)),  # 3
    Part.ArcOfCircle(Part.Circle(App.Vector(-131.1, 35.2, 0), App.Vector(0, 0, 1), 40.9), math.radians(52.6), math.radians(56.47)),  # 4
    Part.LineSegment(App.Vector(-108.5, 69.3, 0), App.Vector(-108.5, 1.1, 0)),  # 5
    Part.ArcOfCircle(Part.Circle(App.Vector(-131.1, 35.2, 0), App.Vector(0, 0, 1), 40.9), math.radians(-56.47), math.radians(-52.6)),  # 6
    Part.ArcOfCircle(Part.Circle(App.Vector(-131.1, 35.2, 0), App.Vector(0, 0, 1), 40.9), math.radians(-53), math.radians(53)),  # 7
], False)
sketch5.addConstraint([
    Sketcher.Constraint("Tangent", 0, 2, 1, 1),
    Sketcher.Constraint("Tangent", 1, 2, 2, 1),
    Sketcher.Constraint("Coincident", 2, 2, 3, 1),
    Sketcher.Constraint("Coincident", 3, 2, 0, 1),
    Sketcher.Constraint("Coincident", 4, 2, 5, 1),
    Sketcher.Constraint("Coincident", 5, 2, 6, 1),
    Sketcher.Constraint("Tangent", 6, 2, 7, 1),
    Sketcher.Constraint("Tangent", 7, 2, 4, 1),
    Sketcher.Constraint("Vertical", 3),
    Sketcher.Constraint("Vertical", 5),
    Sketcher.Constraint("Coincident", 2, 3, 0, 3),
    Sketcher.Constraint("Coincident", 6, 3, 4, 3),
    Sketcher.Constraint("Equal", 2, 4),
    Sketcher.Constraint("PointOnObject", 0, 3, -2),
    Sketcher.Constraint("Horizontal", 2, 3, 4, 3),
    Sketcher.Constraint("Horizontal", 3, 2, 4, 2),
    Sketcher.Constraint("Horizontal", 1, 2, 6, 2),
    Sketcher.Constraint("Horizontal", 0, 2, 7, 2),
    Sketcher.Constraint("Vertical", 0, 2, 1, 2),
    Sketcher.Constraint("Radius", 0, 40.90673),
    Sketcher.Constraint("DistanceY", 3, 1, 3, 2, 68.202226),
    Sketcher.Constraint("DistanceY", -1, 1, 0, 3, 35.186332),
    Sketcher.Constraint("DistanceY", -1, 1, 0, 2, 67.683529),
    Sketcher.Constraint("DistanceX", 4, 2, -1, 1, 108.523019),
])
pocket1 = doc.addObject("PartDesign::Pocket", "Pocket")
body.addObject(pocket1)
pocket1.Profile = sketch5
pocket1.Type = "ThroughAll"
pocket1.Midplane = True

doc.recompute()
